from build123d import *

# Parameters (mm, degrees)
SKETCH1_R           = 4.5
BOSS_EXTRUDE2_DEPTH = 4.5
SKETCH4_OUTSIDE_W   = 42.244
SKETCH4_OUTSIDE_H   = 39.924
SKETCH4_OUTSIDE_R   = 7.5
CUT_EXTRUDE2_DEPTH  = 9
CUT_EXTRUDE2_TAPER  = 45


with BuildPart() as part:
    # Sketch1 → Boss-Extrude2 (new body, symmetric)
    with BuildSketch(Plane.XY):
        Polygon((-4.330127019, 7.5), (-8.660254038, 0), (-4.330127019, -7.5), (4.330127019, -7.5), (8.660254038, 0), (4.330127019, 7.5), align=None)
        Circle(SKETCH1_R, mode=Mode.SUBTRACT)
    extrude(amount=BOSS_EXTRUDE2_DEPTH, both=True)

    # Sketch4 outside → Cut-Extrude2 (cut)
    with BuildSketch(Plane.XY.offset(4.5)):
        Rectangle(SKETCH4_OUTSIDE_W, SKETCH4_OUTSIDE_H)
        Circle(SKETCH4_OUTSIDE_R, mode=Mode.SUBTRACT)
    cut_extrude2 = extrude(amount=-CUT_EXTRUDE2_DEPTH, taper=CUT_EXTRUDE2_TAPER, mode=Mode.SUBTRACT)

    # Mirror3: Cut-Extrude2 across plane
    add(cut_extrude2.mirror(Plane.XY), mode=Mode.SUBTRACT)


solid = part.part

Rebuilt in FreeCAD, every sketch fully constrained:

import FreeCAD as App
import Part
import Sketcher

V = App.Vector
Q = App.Units.Quantity


def add_polygon(sketch, points):
    """Adds a closed chain of lines whose ends are joined by coincident constraints."""
    first, n = sketch.GeometryCount, len(points)
    for a, b in zip(points, points[1:] + points[:1]):
        sketch.addGeometry(Part.LineSegment(App.Vector(*a, 0), App.Vector(*b, 0)), False)
    for i in range(n):
        sketch.addConstraint(Sketcher.Constraint("Coincident", first + i, 2, first + (i + 1) % n, 1))

doc = App.newDocument("Part")
body = doc.addObject("PartDesign::Body", "Body")

# Sketch on XY plane
sketch1 = body.newObject("Sketcher::SketchObject", "Sketch")
sketch1.AttachmentSupport = (doc.getObject("XY_Plane"), [""])
sketch1.MapMode = "FlatFace"
add_polygon(sketch1, [(-4.3, 7.5), (-8.7, 0), (-4.3, -7.5), (4.3, -7.5), (8.7, 0), (4.3, 7.5)])  # lines 0-5
sketch1.addGeometry(Part.Circle(V(0, 0, 0), V(0, 0, 1), 4.5), False)  # 6
sketch1.addConstraint([
    Sketcher.Constraint("Horizontal", 2),
    Sketcher.Constraint("Horizontal", 5),
    Sketcher.Constraint("Coincident", 6, 3, -1, 1),
    Sketcher.Constraint("Symmetric", 0, 2, 3, 2, -1, 1),
    Sketcher.Constraint("Symmetric", 1, 2, 4, 2, -1, 1),
    Sketcher.Constraint("PointOnObject", 0, 2, -1),
    Sketcher.Constraint("Parallel", 0, 3),
    Sketcher.Constraint("Vertical", 2, 2, 4, 2),
    Sketcher.Constraint("Diameter", 6, Q("9 mm")),
    Sketcher.Constraint("Angle", 0, Q("-120 deg")),
    Sketcher.Constraint("DistanceY", 2, 2, 4, 2, Q("15 mm")),
    Sketcher.Constraint("DistanceX", 2, 1, 2, 2, Q("8.660254 mm")),
])
pad1 = body.newObject("PartDesign::Pad", "Pad")
pad1.Profile = sketch1
pad1.Length = 9
pad1.Midplane = True

# Sketch on XY plane
sketch2 = body.newObject("Sketcher::SketchObject", "Sketch001")
sketch2.AttachmentSupport = (doc.getObject("XY_Plane"), [""])
sketch2.MapMode = "FlatFace"
sketch2.AttachmentOffset = App.Placement(V(0, 0, 4.5), App.Rotation())
add_polygon(sketch2, [(-21, 20), (-21, -20), (21, -20), (21, 20)])  # lines 0-3
sketch2.addGeometry(Part.Circle(V(0, 0, 0), V(0, 0, 1), 8), False)  # 4
sketch2.addConstraint([
    Sketcher.Constraint("Vertical", 0),
    Sketcher.Constraint("Horizontal", 1),
    Sketcher.Constraint("Vertical", 2),
    Sketcher.Constraint("Horizontal", 3),
    Sketcher.Constraint("Coincident", 4, 3, -1, 1),
    Sketcher.Constraint("Symmetric", 0, 2, 2, 2, -1, 1),
    Sketcher.Constraint("Diameter", 4, Q("15 mm")),
    Sketcher.Constraint("DistanceX", 1, 1, 1, 2, Q("42.244 mm")),
    Sketcher.Constraint("DistanceY", 0, 2, 0, 1, Q("39.924 mm")),
])
pocket1 = body.newObject("PartDesign::Pocket", "Pocket")
pocket1.Profile = sketch2
pocket1.Length = 9
pocket1.TaperAngle = 45
doc.recompute()

mirrored = body.newObject("PartDesign::Mirrored", "Mirrored")
mirrored.Originals = [pocket1]
mirrored.MirrorPlane = (doc.getObject("XY_Plane"), [""])
body.Tip = mirrored

doc.recompute()
